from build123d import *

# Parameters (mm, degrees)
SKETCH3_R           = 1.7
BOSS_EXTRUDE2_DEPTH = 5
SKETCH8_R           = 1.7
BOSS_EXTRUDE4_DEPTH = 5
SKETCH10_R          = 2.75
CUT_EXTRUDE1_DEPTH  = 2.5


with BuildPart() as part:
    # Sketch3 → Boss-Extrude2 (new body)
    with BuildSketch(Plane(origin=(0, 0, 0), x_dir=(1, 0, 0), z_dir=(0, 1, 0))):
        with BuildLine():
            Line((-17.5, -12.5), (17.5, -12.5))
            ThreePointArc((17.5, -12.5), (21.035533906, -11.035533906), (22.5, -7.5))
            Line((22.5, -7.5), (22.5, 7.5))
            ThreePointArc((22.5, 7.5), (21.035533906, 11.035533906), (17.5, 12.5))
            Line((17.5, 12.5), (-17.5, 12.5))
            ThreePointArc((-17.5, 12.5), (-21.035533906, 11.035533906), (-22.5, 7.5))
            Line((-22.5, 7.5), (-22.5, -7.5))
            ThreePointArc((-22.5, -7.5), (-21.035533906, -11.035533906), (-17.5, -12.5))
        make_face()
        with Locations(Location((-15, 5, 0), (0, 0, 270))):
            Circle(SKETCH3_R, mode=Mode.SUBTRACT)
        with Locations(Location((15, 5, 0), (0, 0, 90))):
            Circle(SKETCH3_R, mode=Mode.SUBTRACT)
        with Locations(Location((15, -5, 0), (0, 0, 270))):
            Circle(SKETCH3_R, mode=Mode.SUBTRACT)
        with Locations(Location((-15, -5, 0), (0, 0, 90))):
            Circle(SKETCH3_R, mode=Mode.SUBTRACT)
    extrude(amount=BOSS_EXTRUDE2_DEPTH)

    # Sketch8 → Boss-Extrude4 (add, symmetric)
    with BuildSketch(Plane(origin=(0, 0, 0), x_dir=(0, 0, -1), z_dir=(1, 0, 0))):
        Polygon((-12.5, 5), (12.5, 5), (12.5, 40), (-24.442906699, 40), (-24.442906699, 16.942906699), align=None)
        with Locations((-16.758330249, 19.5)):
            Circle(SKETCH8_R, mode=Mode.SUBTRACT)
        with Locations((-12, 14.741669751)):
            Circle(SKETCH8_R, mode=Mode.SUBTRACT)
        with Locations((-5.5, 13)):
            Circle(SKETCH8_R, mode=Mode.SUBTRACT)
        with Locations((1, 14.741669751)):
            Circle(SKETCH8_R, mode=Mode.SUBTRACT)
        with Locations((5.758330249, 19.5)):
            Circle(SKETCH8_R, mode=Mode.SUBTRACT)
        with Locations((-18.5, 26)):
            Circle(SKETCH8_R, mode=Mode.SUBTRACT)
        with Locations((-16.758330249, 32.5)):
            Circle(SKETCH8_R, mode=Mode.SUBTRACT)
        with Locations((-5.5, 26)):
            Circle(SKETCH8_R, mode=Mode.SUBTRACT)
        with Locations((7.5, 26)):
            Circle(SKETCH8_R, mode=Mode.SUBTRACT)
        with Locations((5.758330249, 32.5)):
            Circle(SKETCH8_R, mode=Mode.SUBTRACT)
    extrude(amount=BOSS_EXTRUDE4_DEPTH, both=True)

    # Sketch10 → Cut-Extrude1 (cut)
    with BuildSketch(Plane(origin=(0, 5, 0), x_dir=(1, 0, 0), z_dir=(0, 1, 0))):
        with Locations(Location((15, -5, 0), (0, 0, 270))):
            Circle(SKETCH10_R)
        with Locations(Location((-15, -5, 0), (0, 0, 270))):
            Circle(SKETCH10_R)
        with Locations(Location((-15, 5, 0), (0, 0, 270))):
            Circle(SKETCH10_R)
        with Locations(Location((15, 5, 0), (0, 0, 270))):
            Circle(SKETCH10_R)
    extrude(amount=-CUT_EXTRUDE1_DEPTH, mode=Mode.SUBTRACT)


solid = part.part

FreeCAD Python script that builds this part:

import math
import FreeCAD as App
import Part
import Sketcher

V = App.Vector
Q = App.Units.Quantity

doc = App.newDocument("Part")
body = doc.addObject("PartDesign::Body", "Body")

# Sketch on XZ plane
sketch1 = body.newObject("Sketcher::SketchObject", "Sketch")
sketch1.AttachmentSupport = (doc.getObject("XZ_Plane"), [""])
sketch1.MapMode = "FlatFace"
sketch1.addGeometry(Part.LineSegment(V(-17.5, 12.5, 0), V(17.5, 12.5, 0)), False)
sketch1.addGeometry(Part.ArcOfCircle(Part.Circle(V(17.5, 7.5, 0), V(0, 0, 1), 5), math.radians(0), math.radians(90)), False)
sketch1.addGeometry(Part.LineSegment(V(22.5, 7.5, 0), V(22.5, -7.5, 0)), False)
sketch1.addGeometry(Part.ArcOfCircle(Part.Circle(V(17.5, -7.5, 0), V(0, 0, 1), 5), math.radians(-90), math.radians(0)), False)
sketch1.addGeometry(Part.LineSegment(V(17.5, -12.5, 0), V(-17.5, -12.5, 0)), False)
sketch1.addGeometry(Part.ArcOfCircle(Part.Circle(V(-17.5, -7.5, 0), V(0, 0, 1), 5), math.radians(180), math.radians(270)), False)
sketch1.addGeometry(Part.LineSegment(V(-22.5, -7.5, 0), V(-22.5, 7.5, 0)), False)
sketch1.addGeometry(Part.ArcOfCircle(Part.Circle(V(-17.5, 7.5, 0), V(0, 0, 1), 5), math.radians(90), math.radians(180)), False)
sketch1.addGeometry(Part.Circle(V(-15, 5, 0), V(0, 0, 1), 1.7), False)
sketch1.addGeometry(Part.Circle(V(15, 5, 0), V(0, 0, 1), 1.7), False)
sketch1.addGeometry(Part.Circle(V(-15, -5, 0), V(0, 0, 1), 1.7), False)
sketch1.addGeometry(Part.Circle(V(15, -5, 0), V(0, 0, 1), 1.7), False)
sketch1.addConstraint(Sketcher.Constraint("Tangent", 0, 2, 1, 2))
sketch1.addConstraint(Sketcher.Constraint("Tangent", 1, 1, 2, 1))
sketch1.addConstraint(Sketcher.Constraint("Tangent", 2, 2, 3, 2))
sketch1.addConstraint(Sketcher.Constraint("Tangent", 3, 1, 4, 1))
sketch1.addConstraint(Sketcher.Constraint("Tangent", 4, 2, 5, 2))
sketch1.addConstraint(Sketcher.Constraint("Tangent", 5, 1, 6, 1))
sketch1.addConstraint(Sketcher.Constraint("Tangent", 6, 2, 7, 2))
sketch1.addConstraint(Sketcher.Constraint("Tangent", 7, 1, 0, 1))
sketch1.addConstraint(Sketcher.Constraint("Horizontal", 0))
sketch1.addConstraint(Sketcher.Constraint("Vertical", 2))
sketch1.addConstraint(Sketcher.Constraint("Horizontal", 4))
sketch1.addConstraint(Sketcher.Constraint("Vertical", 6))
sketch1.addConstraint(Sketcher.Constraint("Equal", 1, 3))
sketch1.addConstraint(Sketcher.Constraint("Equal", 3, 5))
sketch1.addConstraint(Sketcher.Constraint("Equal", 5, 7))
sketch1.addConstraint(Sketcher.Constraint("Equal", 8, 9))
sketch1.addConstraint(Sketcher.Constraint("Equal", 9, 10))
sketch1.addConstraint(Sketcher.Constraint("Equal", 10, 11))
sketch1.addConstraint(Sketcher.Constraint("Symmetric", 1, 3, 5, 3, -1, 1))
sketch1.addConstraint(Sketcher.Constraint("Symmetric", 9, 3, 10, 3, -1, 1))
sketch1.addConstraint(Sketcher.Constraint("Symmetric", 8, 3, 11, 3, -1, 1))
sketch1.addConstraint(Sketcher.Constraint("Symmetric", 8, 3, 9, 3, -2))
sketch1.addConstraint(Sketcher.Constraint("Radius", 1, Q("5 mm")))
sketch1.addConstraint(Sketcher.Constraint("Diameter", 8, Q("3.4 mm")))
sketch1.addConstraint(Sketcher.Constraint("DistanceX", 0, 1, 0, 2, Q("35 mm")))
sketch1.addConstraint(Sketcher.Constraint("DistanceY", 2, 2, 2, 1, Q("15 mm")))
sketch1.addConstraint(Sketcher.Constraint("DistanceX", 8, 3, -1, 1, Q("15 mm")))
sketch1.addConstraint(Sketcher.Constraint("DistanceY", -1, 1, 8, 3, Q("5 mm")))
pad1 = body.newObject("PartDesign::Pad", "Pad")
pad1.Profile = sketch1
pad1.Length = 5
pad1.Reversed = True

# Sketch on YZ plane
sketch2 = body.newObject("Sketcher::SketchObject", "Sketch001")
sketch2.AttachmentSupport = (doc.getObject("YZ_Plane"), [""])
sketch2.MapMode = "FlatFace"
sketch2.addGeometry(Part.LineSegment(V(5, 12.5, 0), V(5, -12.5, 0)), False)
sketch2.addGeometry(Part.LineSegment(V(5, -12.5, 0), V(40, -12.5, 0)), False)
sketch2.addGeometry(Part.LineSegment(V(40, -12.5, 0), V(40, 24.4, 0)), False)
sketch2.addGeometry(Part.LineSegment(V(40, 24.4, 0), V(16.9, 24.4, 0)), False)
sketch2.addGeometry(Part.LineSegment(V(16.9, 24.4, 0), V(5, 12.5, 0)), False)
sketch2.addGeometry(Part.Circle(V(14.7, 12, 0), V(0, 0, 1), 1.7), False)
sketch2.addGeometry(Part.Circle(V(19.5, 16.8, 0), V(0, 0, 1), 1.7), False)
sketch2.addGeometry(Part.Circle(V(13, 5.5, 0), V(0, 0, 1), 1.7), False)
sketch2.addGeometry(Part.Circle(V(14.7, -1, 0), V(0, 0, 1), 1.7), False)
sketch2.addGeometry(Part.Circle(V(19.5, -5.8, 0), V(0, 0, 1), 1.7), False)
sketch2.addGeometry(Part.Circle(V(26, 18.5, 0), V(0, 0, 1), 1.7), False)
sketch2.addGeometry(Part.Circle(V(32.5, 16.8, 0), V(0, 0, 1), 1.7), False)
sketch2.addGeometry(Part.Circle(V(26, 5.5, 0), V(0, 0, 1), 1.7), False)
sketch2.addGeometry(Part.Circle(V(26, -7.5, 0), V(0, 0, 1), 1.7), False)
sketch2.addGeometry(Part.Circle(V(32.5, -5.8, 0), V(0, 0, 1), 1.7), False)
sketch2.addConstraint(Sketcher.Constraint("Coincident", 0, 2, 1, 1))
sketch2.addConstraint(Sketcher.Constraint("Coincident", 1, 2, 2, 1))
sketch2.addConstraint(Sketcher.Constraint("Coincident", 2, 2, 3, 1))
sketch2.addConstraint(Sketcher.Constraint("Coincident", 3, 2, 4, 1))
sketch2.addConstraint(Sketcher.Constraint("Coincident", 4, 2, 0, 1))
sketch2.addConstraint(Sketcher.Constraint("Vertical", 0))
sketch2.addConstraint(Sketcher.Constraint("Horizontal", 1))
sketch2.addConstraint(Sketcher.Constraint("Vertical", 2))
sketch2.addConstraint(Sketcher.Constraint("Horizontal", 3))
sketch2.addConstraint(Sketcher.Constraint("Equal", 5, 6))
sketch2.addConstraint(Sketcher.Constraint("Equal", 6, 7))
sketch2.addConstraint(Sketcher.Constraint("Equal", 7, 8))
sketch2.addConstraint(Sketcher.Constraint("Equal", 8, 9))
sketch2.addConstraint(Sketcher.Constraint("Equal", 9, 10))
sketch2.addConstraint(Sketcher.Constraint("Equal", 10, 11))
sketch2.addConstraint(Sketcher.Constraint("Equal", 11, 12))
sketch2.addConstraint(Sketcher.Constraint("Equal", 12, 13))
sketch2.addConstraint(Sketcher.Constraint("Equal", 13, 14))
sketch2.addConstraint(Sketcher.Constraint("Horizontal", 6, 3, 11, 3))
sketch2.addConstraint(Sketcher.Constraint("Horizontal", 7, 3, 12, 3))
sketch2.addConstraint(Sketcher.Constraint("Horizontal", 9, 3, 14, 3))
sketch2.addConstraint(Sketcher.Constraint("Vertical", 5, 3, 8, 3))
sketch2.addConstraint(Sketcher.Constraint("Vertical", 6, 3, 9, 3))
sketch2.addConstraint(Sketcher.Constraint("Vertical", 10, 3, 12, 3))
sketch2.addConstraint(Sketcher.Constraint("Vertical", 12, 3, 13, 3))
sketch2.addConstraint(Sketcher.Constraint("Vertical", 11, 3, 14, 3))
sketch2.addConstraint(Sketcher.Constraint("Diameter", 5, Q("3.4 mm")))
sketch2.addConstraint(Sketcher.Constraint("DistanceX", 1, 1, 1, 2, Q("35 mm")))
sketch2.addConstraint(Sketcher.Constraint("DistanceY", 0, 2, 0, 1, Q("25 mm")))
sketch2.addConstraint(Sketcher.Constraint("Angle", 4, Q("-135 deg")))
sketch2.addConstraint(Sketcher.Constraint("DistanceY", -1, 1, 5, 3, Q("12 mm")))
sketch2.addConstraint(Sketcher.Constraint("DistanceX", -1, 1, 7, 3, Q("13 mm")))
sketch2.addConstraint(Sketcher.Constraint("DistanceY", 8, 3, -1, 1, Q("1 mm")))
sketch2.addConstraint(Sketcher.Constraint("DistanceX", -1, 1, 10, 3, Q("26 mm")))
sketch2.addConstraint(Sketcher.Constraint("DistanceX", -1, 1, 0, 2, Q("5 mm")))
sketch2.addConstraint(Sketcher.Constraint("DistanceY", 7, 3, 10, 3, Q("13 mm")))
sketch2.addConstraint(Sketcher.Constraint("DistanceX", 6, 3, 11, 3, Q("13 mm")))
sketch2.addConstraint(Sketcher.Constraint("DistanceY", 13, 3, 12, 3, Q("13 mm")))
sketch2.addConstraint(Sketcher.Constraint("DistanceY", 0, 2, 7, 3, Q("18 mm")))
sketch2.addConstraint(Sketcher.Constraint("DistanceX", -1, 1, 6, 3, Q("19.5 mm")))
sketch2.addConstraint(Sketcher.Constraint("DistanceY", -1, 1, 7, 3, Q("5.5 mm")))
sketch2.addConstraint(Sketcher.Constraint("Distance", 4, Q("16.889821 mm")))
sketch2.addConstraint(Sketcher.Constraint("DistanceX", -1, 1, 5, 3, Q("14.74167 mm")))
sketch2.addConstraint(Sketcher.Constraint("DistanceY", -1, 1, 6, 3, Q("16.75833 mm")))
sketch2.addConstraint(Sketcher.Constraint("DistanceY", 9, 3, -1, 1, Q("5.75833 mm")))
pad2 = body.newObject("PartDesign::Pad", "Pad001")
pad2.Profile = sketch2
pad2.Length = 10
pad2.Midplane = True

# Sketch on XZ plane
sketch3 = body.newObject("Sketcher::SketchObject", "Sketch002")
sketch3.AttachmentSupport = (doc.getObject("XZ_Plane"), [""])
sketch3.MapMode = "FlatFace"
sketch3.AttachmentOffset = App.Placement(V(0, 0, -5), App.Rotation())
sketch3.addGeometry(Part.Circle(V(15, 5, 0), V(0, 0, 1), 2.8), False)
sketch3.addGeometry(Part.Circle(V(-15, 5, 0), V(0, 0, 1), 2.8), False)
sketch3.addGeometry(Part.Circle(V(-15, -5, 0), V(0, 0, 1), 2.8), False)
sketch3.addGeometry(Part.Circle(V(15, -5, 0), V(0, 0, 1), 2.8), False)
sketch3.addConstraint(Sketcher.Constraint("Equal", 0, 1))
sketch3.addConstraint(Sketcher.Constraint("Equal", 1, 2))
sketch3.addConstraint(Sketcher.Constraint("Equal", 2, 3))
sketch3.addConstraint(Sketcher.Constraint("Symmetric", 0, 3, 2, 3, -1, 1))
sketch3.addConstraint(Sketcher.Constraint("Symmetric", 1, 3, 3, 3, -1, 1))
sketch3.addConstraint(Sketcher.Constraint("Symmetric", 0, 3, 1, 3, -2))
sketch3.addConstraint(Sketcher.Constraint("Diameter", 0, Q("5.5 mm")))
sketch3.addConstraint(Sketcher.Constraint("DistanceX", -1, 1, 0, 3, Q("15 mm")))
sketch3.addConstraint(Sketcher.Constraint("DistanceY", -1, 1, 0, 3, Q("5 mm")))
pocket1 = body.newObject("PartDesign::Pocket", "Pocket")
pocket1.Profile = sketch3
pocket1.Length = 2.5
pocket1.Reversed = True

doc.recompute()
